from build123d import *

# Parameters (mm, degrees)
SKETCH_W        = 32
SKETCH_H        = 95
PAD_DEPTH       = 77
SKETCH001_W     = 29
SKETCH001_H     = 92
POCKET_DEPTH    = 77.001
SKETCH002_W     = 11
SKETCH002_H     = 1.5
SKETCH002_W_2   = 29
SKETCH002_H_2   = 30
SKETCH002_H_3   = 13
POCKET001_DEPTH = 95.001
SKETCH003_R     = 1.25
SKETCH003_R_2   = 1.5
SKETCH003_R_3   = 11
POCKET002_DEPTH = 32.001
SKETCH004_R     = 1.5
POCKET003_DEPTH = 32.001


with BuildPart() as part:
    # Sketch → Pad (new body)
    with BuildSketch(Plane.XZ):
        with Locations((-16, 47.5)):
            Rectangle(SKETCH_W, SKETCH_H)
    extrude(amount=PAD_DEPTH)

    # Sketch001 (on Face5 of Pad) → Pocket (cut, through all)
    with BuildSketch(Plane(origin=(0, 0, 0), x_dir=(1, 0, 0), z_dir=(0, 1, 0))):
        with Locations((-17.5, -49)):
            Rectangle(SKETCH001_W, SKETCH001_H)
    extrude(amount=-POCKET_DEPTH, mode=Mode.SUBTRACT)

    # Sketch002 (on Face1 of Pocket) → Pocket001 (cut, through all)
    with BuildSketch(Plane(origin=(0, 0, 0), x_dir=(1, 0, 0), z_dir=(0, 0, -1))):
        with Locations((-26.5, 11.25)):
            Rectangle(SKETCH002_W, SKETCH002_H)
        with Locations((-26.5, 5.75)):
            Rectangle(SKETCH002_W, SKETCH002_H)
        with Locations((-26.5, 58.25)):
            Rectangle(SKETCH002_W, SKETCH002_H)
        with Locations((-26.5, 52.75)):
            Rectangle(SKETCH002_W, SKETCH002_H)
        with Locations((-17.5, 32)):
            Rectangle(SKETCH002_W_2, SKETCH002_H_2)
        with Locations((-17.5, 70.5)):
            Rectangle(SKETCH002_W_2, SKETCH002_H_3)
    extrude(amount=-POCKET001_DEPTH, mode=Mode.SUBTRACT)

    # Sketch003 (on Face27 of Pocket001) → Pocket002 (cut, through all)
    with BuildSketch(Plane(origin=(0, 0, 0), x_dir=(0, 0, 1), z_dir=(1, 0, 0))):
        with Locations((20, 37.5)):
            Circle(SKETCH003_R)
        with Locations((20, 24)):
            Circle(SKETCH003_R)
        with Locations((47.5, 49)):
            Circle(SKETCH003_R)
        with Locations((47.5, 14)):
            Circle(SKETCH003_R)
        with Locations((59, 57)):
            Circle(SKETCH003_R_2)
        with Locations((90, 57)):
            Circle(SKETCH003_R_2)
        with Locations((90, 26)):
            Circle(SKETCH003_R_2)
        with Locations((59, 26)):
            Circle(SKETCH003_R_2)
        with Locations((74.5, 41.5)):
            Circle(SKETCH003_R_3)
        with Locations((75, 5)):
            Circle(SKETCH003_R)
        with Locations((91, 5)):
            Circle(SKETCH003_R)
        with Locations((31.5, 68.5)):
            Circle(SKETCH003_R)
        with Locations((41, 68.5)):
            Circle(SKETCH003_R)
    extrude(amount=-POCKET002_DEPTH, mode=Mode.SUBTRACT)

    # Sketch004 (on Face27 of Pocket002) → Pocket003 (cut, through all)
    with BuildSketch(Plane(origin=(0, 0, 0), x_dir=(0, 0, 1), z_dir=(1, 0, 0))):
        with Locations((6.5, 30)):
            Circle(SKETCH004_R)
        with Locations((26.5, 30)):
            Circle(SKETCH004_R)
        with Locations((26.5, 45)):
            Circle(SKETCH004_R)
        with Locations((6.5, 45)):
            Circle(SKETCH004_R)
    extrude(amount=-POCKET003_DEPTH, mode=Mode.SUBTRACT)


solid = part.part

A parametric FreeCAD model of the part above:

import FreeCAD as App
import Part
import Sketcher

V = App.Vector
Q = App.Units.Quantity

doc = App.newDocument("Part")
body = doc.addObject("PartDesign::Body", "Body")

# Sketch on XZ plane
sketch1 = body.newObject("Sketcher::SketchObject", "Sketch")
sketch1.AttachmentSupport = (doc.getObject("XZ_Plane"), [""])
sketch1.MapMode = "FlatFace"
sketch1.addGeometry(Part.LineSegment(V(-32, 95, 0), V(-32, 0, 0)), False)
sketch1.addGeometry(Part.LineSegment(V(-32, 0, 0), V(0, 0, 0)), False)
sketch1.addGeometry(Part.LineSegment(V(0, 0, 0), V(0, 95, 0)), False)
sketch1.addGeometry(Part.LineSegment(V(0, 95, 0), V(-32, 95, 0)), False)
sketch1.addConstraint(Sketcher.Constraint("Coincident", 0, 2, 1, 1))
sketch1.addConstraint(Sketcher.Constraint("Coincident", 1, 2, 2, 1))
sketch1.addConstraint(Sketcher.Constraint("Coincident", 2, 2, 3, 1))
sketch1.addConstraint(Sketcher.Constraint("Coincident", 3, 2, 0, 1))
sketch1.addConstraint(Sketcher.Constraint("Vertical", 0))
sketch1.addConstraint(Sketcher.Constraint("Horizontal", 1))
sketch1.addConstraint(Sketcher.Constraint("Vertical", 2))
sketch1.addConstraint(Sketcher.Constraint("Horizontal", 3))
sketch1.addConstraint(Sketcher.Constraint("Coincident", 1, 2, -1, 1))
sketch1.addConstraint(Sketcher.Constraint("DistanceX", 1, 1, 1, 2, Q("32 mm")))
sketch1.addConstraint(Sketcher.Constraint("DistanceY", 0, 2, 0, 1, Q("95 mm")))
pad1 = body.newObject("PartDesign::Pad", "Pad")
pad1.Profile = sketch1
pad1.Length = 77

# Sketch on XZ plane
sketch2 = body.newObject("Sketcher::SketchObject", "Sketch001")
sketch2.AttachmentSupport = (doc.getObject("XZ_Plane"), [""])
sketch2.MapMode = "FlatFace"
sketch2.addGeometry(Part.LineSegment(V(-32, 3, 0), V(-32, 95, 0)), False)
sketch2.addGeometry(Part.LineSegment(V(-32, 95, 0), V(-3, 95, 0)), False)
sketch2.addGeometry(Part.LineSegment(V(-3, 95, 0), V(-3, 3, 0)), False)
sketch2.addGeometry(Part.LineSegment(V(-3, 3, 0), V(-32, 3, 0)), False)
sketch2.addConstraint(Sketcher.Constraint("Coincident", 0, 2, 1, 1))
sketch2.addConstraint(Sketcher.Constraint("Coincident", 1, 2, 2, 1))
sketch2.addConstraint(Sketcher.Constraint("Coincident", 2, 2, 3, 1))
sketch2.addConstraint(Sketcher.Constraint("Coincident", 3, 2, 0, 1))
sketch2.addConstraint(Sketcher.Constraint("Vertical", 0))
sketch2.addConstraint(Sketcher.Constraint("Horizontal", 1))
sketch2.addConstraint(Sketcher.Constraint("Vertical", 2))
sketch2.addConstraint(Sketcher.Constraint("Horizontal", 3))
sketch2.addConstraint(Sketcher.Constraint("DistanceX", 1, 1, 1, 2, Q("29 mm")))
sketch2.addConstraint(Sketcher.Constraint("DistanceY", 0, 1, 0, 2, Q("92 mm")))
sketch2.addConstraint(Sketcher.Constraint("DistanceX", 0, 2, -1, 1, Q("32 mm")))
sketch2.addConstraint(Sketcher.Constraint("DistanceY", -1, 1, 0, 2, Q("95 mm")))
pocket1 = body.newObject("PartDesign::Pocket", "Pocket")
pocket1.Profile = sketch2
pocket1.Type = "ThroughAll"
pocket1.Reversed = True

# Sketch on XY plane
sketch3 = body.newObject("Sketcher::SketchObject", "Sketch002")
sketch3.AttachmentSupport = (doc.getObject("XY_Plane"), [""])
sketch3.MapMode = "FlatFace"
sketch3.addGeometry(Part.LineSegment(V(-32, -12, 0), V(-32, -10.5, 0)), False)
sketch3.addGeometry(Part.LineSegment(V(-32, -10.5, 0), V(-21, -10.5, 0)), False)
sketch3.addGeometry(Part.LineSegment(V(-21, -10.5, 0), V(-21, -12, 0)), False)
sketch3.addGeometry(Part.LineSegment(V(-21, -12, 0), V(-32, -12, 0)), False)
sketch3.addGeometry(Part.LineSegment(V(-32, -6.5, 0), V(-32, -5, 0)), False)
sketch3.addGeometry(Part.LineSegment(V(-32, -5, 0), V(-21, -5, 0)), False)
sketch3.addGeometry(Part.LineSegment(V(-21, -5, 0), V(-21, -6.5, 0)), False)
sketch3.addGeometry(Part.LineSegment(V(-21, -6.5, 0), V(-32, -6.5, 0)), False)
sketch3.addGeometry(Part.LineSegment(V(-32, -59, 0), V(-32, -57.5, 0)), False)
sketch3.addGeometry(Part.LineSegment(V(-32, -57.5, 0), V(-21, -57.5, 0)), False)
sketch3.addGeometry(Part.LineSegment(V(-21, -57.5, 0), V(-21, -59, 0)), False)
sketch3.addGeometry(Part.LineSegment(V(-21, -59, 0), V(-32, -59, 0)), False)
sketch3.addGeometry(Part.LineSegment(V(-32, -53.5, 0), V(-32, -52, 0)), False)
sketch3.addGeometry(Part.LineSegment(V(-32, -52, 0), V(-21, -52, 0)), False)
sketch3.addGeometry(Part.LineSegment(V(-21, -52, 0), V(-21, -53.5, 0)), False)
sketch3.addGeometry(Part.LineSegment(V(-21, -53.5, 0), V(-32, -53.5, 0)), False)
sketch3.addGeometry(Part.LineSegment(V(-32, -47, 0), V(-32, -17, 0)), False)
sketch3.addGeometry(Part.LineSegment(V(-32, -17, 0), V(-3, -17, 0)), False)
sketch3.addGeometry(Part.LineSegment(V(-3, -17, 0), V(-3, -47, 0)), False)
sketch3.addGeometry(Part.LineSegment(V(-3, -47, 0), V(-32, -47, 0)), False)
sketch3.addGeometry(Part.LineSegment(V(-32, -77, 0), V(-32, -64, 0)), False)
sketch3.addGeometry(Part.LineSegment(V(-32, -64, 0), V(-3, -64, 0)), False)
sketch3.addGeometry(Part.LineSegment(V(-3, -64, 0), V(-3, -77, 0)), False)
sketch3.addGeometry(Part.LineSegment(V(-3, -77, 0), V(-32, -77, 0)), False)
sketch3.addConstraint(Sketcher.Constraint("Coincident", 0, 2, 1, 1))
sketch3.addConstraint(Sketcher.Constraint("Coincident", 1, 2, 2, 1))
sketch3.addConstraint(Sketcher.Constraint("Coincident", 2, 2, 3, 1))
sketch3.addConstraint(Sketcher.Constraint("Coincident", 3, 2, 0, 1))
sketch3.addConstraint(Sketcher.Constraint("Coincident", 4, 2, 5, 1))
sketch3.addConstraint(Sketcher.Constraint("Coincident", 5, 2, 6, 1))
sketch3.addConstraint(Sketcher.Constraint("Coincident", 6, 2, 7, 1))
sketch3.addConstraint(Sketcher.Constraint("Coincident", 7, 2, 4, 1))
sketch3.addConstraint(Sketcher.Constraint("Coincident", 8, 2, 9, 1))
sketch3.addConstraint(Sketcher.Constraint("Coincident", 9, 2, 10, 1))
sketch3.addConstraint(Sketcher.Constraint("Coincident", 10, 2, 11, 1))
sketch3.addConstraint(Sketcher.Constraint("Coincident", 11, 2, 8, 1))
sketch3.addConstraint(Sketcher.Constraint("Coincident", 12, 2, 13, 1))
sketch3.addConstraint(Sketcher.Constraint("Coincident", 13, 2, 14, 1))
sketch3.addConstraint(Sketcher.Constraint("Coincident", 14, 2, 15, 1))
sketch3.addConstraint(Sketcher.Constraint("Coincident", 15, 2, 12, 1))
sketch3.addConstraint(Sketcher.Constraint("Coincident", 16, 2, 17, 1))
sketch3.addConstraint(Sketcher.Constraint("Coincident", 17, 2, 18, 1))
sketch3.addConstraint(Sketcher.Constraint("Coincident", 18, 2, 19, 1))
sketch3.addConstraint(Sketcher.Constraint("Coincident", 19, 2, 16, 1))
sketch3.addConstraint(Sketcher.Constraint("Coincident", 20, 2, 21, 1))
sketch3.addConstraint(Sketcher.Constraint("Coincident", 21, 2, 22, 1))
sketch3.addConstraint(Sketcher.Constraint("Coincident", 22, 2, 23, 1))
sketch3.addConstraint(Sketcher.Constraint("Coincident", 23, 2, 20, 1))
sketch3.addConstraint(Sketcher.Constraint("Vertical", 0))
sketch3.addConstraint(Sketcher.Constraint("Horizontal", 1))
sketch3.addConstraint(Sketcher.Constraint("Vertical", 2))
sketch3.addConstraint(Sketcher.Constraint("Horizontal", 3))
sketch3.addConstraint(Sketcher.Constraint("Vertical", 4))
sketch3.addConstraint(Sketcher.Constraint("Horizontal", 5))
sketch3.addConstraint(Sketcher.Constraint("Vertical", 6))
sketch3.addConstraint(Sketcher.Constraint("Horizontal", 7))
sketch3.addConstraint(Sketcher.Constraint("Vertical", 8))
sketch3.addConstraint(Sketcher.Constraint("Horizontal", 9))
sketch3.addConstraint(Sketcher.Constraint("Vertical", 10))
sketch3.addConstraint(Sketcher.Constraint("Horizontal", 11))
sketch3.addConstraint(Sketcher.Constraint("Vertical", 12))
sketch3.addConstraint(Sketcher.Constraint("Horizontal", 13))
sketch3.addConstraint(Sketcher.Constraint("Vertical", 14))
sketch3.addConstraint(Sketcher.Constraint("Horizontal", 15))
sketch3.addConstraint(Sketcher.Constraint("Vertical", 16))
sketch3.addConstraint(Sketcher.Constraint("Horizontal", 17))
sketch3.addConstraint(Sketcher.Constraint("Vertical", 18))
sketch3.addConstraint(Sketcher.Constraint("Horizontal", 19))
sketch3.addConstraint(Sketcher.Constraint("Vertical", 20))
sketch3.addConstraint(Sketcher.Constraint("Horizontal", 21))
sketch3.addConstraint(Sketcher.Constraint("Vertical", 22))
sketch3.addConstraint(Sketcher.Constraint("Horizontal", 23))
sketch3.addConstraint(Sketcher.Constraint("Vertical", 3, 2, 4, 2))
sketch3.addConstraint(Sketcher.Constraint("Vertical", 2, 2, 5, 2))
sketch3.addConstraint(Sketcher.Constraint("Vertical", 7, 2, 8, 2))
sketch3.addConstraint(Sketcher.Constraint("Vertical", 6, 2, 9, 2))
sketch3.addConstraint(Sketcher.Constraint("Vertical", 11, 2, 12, 2))
sketch3.addConstraint(Sketcher.Constraint("Vertical", 10, 2, 13, 2))
sketch3.addConstraint(Sketcher.Constraint("Vertical", 15, 2, 16, 2))
sketch3.addConstraint(Sketcher.Constraint("Vertical", 19, 2, 20, 2))
sketch3.addConstraint(Sketcher.Constraint("Vertical", 18, 2, 21, 2))
sketch3.addConstraint(Sketcher.Constraint("Equal", 2, 4))
sketch3.addConstraint(Sketcher.Constraint("Equal", 6, 8))
sketch3.addConstraint(Sketcher.Constraint("Equal", 10, 12))
sketch3.addConstraint(Sketcher.Constraint("DistanceX", 1, 1, 1, 2, Q("11 mm")))
sketch3.addConstraint(Sketcher.Constraint("DistanceX", 17, 1, 17, 2, Q("29 mm")))
sketch3.addConstraint(Sketcher.Constraint("DistanceY", 16, 1, 16, 2, Q("30 mm")))
sketch3.addConstraint(Sketcher.Constraint("DistanceY", 20, 1, 20, 2, Q("13 mm")))
sketch3.addConstraint(Sketcher.Constraint("DistanceY", 0, 1, 0, 2, Q("1.5 mm")))
sketch3.addConstraint(Sketcher.Constraint("DistanceX", 0, 2, -1, 1, Q("32 mm")))
sketch3.addConstraint(Sketcher.Constraint("DistanceY", 2, 2, -1, 1, Q("12 mm")))
sketch3.addConstraint(Sketcher.Constraint("DistanceY", 4, 2, -1, 1, Q("5 mm")))
sketch3.addConstraint(Sketcher.Constraint("DistanceY", 10, 2, -1, 1, Q("59 mm")))
sketch3.addConstraint(Sketcher.Constraint("DistanceY", 12, 2, -1, 1, Q("52 mm")))
sketch3.addConstraint(Sketcher.Constraint("DistanceY", 16, 2, -1, 1, Q("17 mm")))
sketch3.addConstraint(Sketcher.Constraint("DistanceY", 20, 2, -1, 1, Q("64 mm")))
pocket2 = body.newObject("PartDesign::Pocket", "Pocket001")
pocket2.Profile = sketch3
pocket2.Type = "ThroughAll"
pocket2.Reversed = True

# Sketch on YZ plane
sketch4 = body.newObject("Sketcher::SketchObject", "Sketch003")
sketch4.AttachmentSupport = (doc.getObject("YZ_Plane"), [""])
sketch4.MapMode = "FlatFace"
sketch4.addGeometry(Part.Circle(V(-37.5, 20, 0), V(0, 0, 1), 1.2), False)
sketch4.addGeometry(Part.Circle(V(-24, 20, 0), V(0, 0, 1), 1.2), False)
sketch4.addGeometry(Part.Circle(V(-49, 47.5, 0), V(0, 0, 1), 1.2), False)
sketch4.addGeometry(Part.Circle(V(-14, 47.5, 0), V(0, 0, 1), 1.2), False)
sketch4.addGeometry(Part.Circle(V(-57, 59, 0), V(0, 0, 1), 1.5), False)
sketch4.addGeometry(Part.Circle(V(-57, 90, 0), V(0, 0, 1), 1.5), False)
sketch4.addGeometry(Part.Circle(V(-26, 90, 0), V(0, 0, 1), 1.5), False)
sketch4.addGeometry(Part.Circle(V(-26, 59, 0), V(0, 0, 1), 1.5), False)
sketch4.addGeometry(Part.Circle(V(-41.5, 74.5, 0), V(0, 0, 1), 11), False)
sketch4.addGeometry(Part.Circle(V(-5, 75, 0), V(0, 0, 1), 1.2), False)
sketch4.addGeometry(Part.Circle(V(-5, 91, 0), V(0, 0, 1), 1.2), False)
sketch4.addGeometry(Part.Circle(V(-68.5, 31.5, 0), V(0, 0, 1), 1.2), False)
sketch4.addGeometry(Part.Circle(V(-68.5, 41, 0), V(0, 0, 1), 1.2), False)
sketch4.addConstraint(Sketcher.Constraint("Equal", 0, 1))
sketch4.addConstraint(Sketcher.Constraint("Equal", 1, 2))
sketch4.addConstraint(Sketcher.Constraint("Equal", 2, 3))
sketch4.addConstraint(Sketcher.Constraint("Equal", 4, 5))
sketch4.addConstraint(Sketcher.Constraint("Equal", 5, 6))
sketch4.addConstraint(Sketcher.Constraint("Equal", 6, 7))
sketch4.addConstraint(Sketcher.Constraint("Equal", 3, 9))
sketch4.addConstraint(Sketcher.Constraint("Equal", 9, 10))
sketch4.addConstraint(Sketcher.Constraint("Equal", 10, 11))
sketch4.addConstraint(Sketcher.Constraint("Equal", 11, 12))
sketch4.addConstraint(Sketcher.Constraint("Horizontal", 0, 3, 1, 3))
sketch4.addConstraint(Sketcher.Constraint("Horizontal", 2, 3, 3, 3))
sketch4.addConstraint(Sketcher.Constraint("Horizontal", 5, 3, 6, 3))
sketch4.addConstraint(Sketcher.Constraint("Horizontal", 4, 3, 7, 3))
sketch4.addConstraint(Sketcher.Constraint("Vertical", 4, 3, 5, 3))
sketch4.addConstraint(Sketcher.Constraint("Vertical", 6, 3, 7, 3))
sketch4.addConstraint(Sketcher.Constraint("Vertical", 9, 3, 10, 3))
sketch4.addConstraint(Sketcher.Constraint("Vertical", 11, 3, 12, 3))
sketch4.addConstraint(Sketcher.Constraint("Diameter", 4, Q("3 mm")))
sketch4.addConstraint(Sketcher.Constraint("Diameter", 8, Q("22 mm")))
sketch4.addConstraint(Sketcher.Constraint("Diameter", 0, Q("2.5 mm")))
sketch4.addConstraint(Sketcher.Constraint("DistanceY", -1, 1, 0, 3, Q("20 mm")))
sketch4.addConstraint(Sketcher.Constraint("DistanceX", 1, 3, -1, 1, Q("24 mm")))
sketch4.addConstraint(Sketcher.Constraint("DistanceX", 2, 3, -1, 1, Q("49 mm")))
sketch4.addConstraint(Sketcher.Constraint("DistanceX", 3, 3, -1, 1, Q("14 mm")))
sketch4.addConstraint(Sketcher.Constraint("DistanceX", 4, 3, -1, 1, Q("57 mm")))
sketch4.addConstraint(Sketcher.Constraint("DistanceY", -1, 1, 4, 3, Q("59 mm")))
sketch4.addConstraint(Sketcher.Constraint("DistanceY", -1, 1, 5, 3, Q("90 mm")))
sketch4.addConstraint(Sketcher.Constraint("DistanceX", 6, 3, -1, 1, Q("26 mm")))
sketch4.addConstraint(Sketcher.Constraint("DistanceX", 9, 3, -1, 1, Q("5 mm")))
sketch4.addConstraint(Sketcher.Constraint("DistanceY", -1, 1, 9, 3, Q("75 mm")))
sketch4.addConstraint(Sketcher.Constraint("DistanceY", -1, 1, 10, 3, Q("91 mm")))
sketch4.addConstraint(Sketcher.Constraint("DistanceY", -1, 1, 12, 3, Q("41 mm")))
sketch4.addConstraint(Sketcher.Constraint("DistanceY", 2, 3, 8, 3, Q("27 mm")))
sketch4.addConstraint(Sketcher.Constraint("DistanceY", 11, 3, 2, 3, Q("16 mm")))
sketch4.addConstraint(Sketcher.Constraint("DistanceX", 11, 3, 0, 3, Q("31 mm")))
sketch4.addConstraint(Sketcher.Constraint("DistanceX", 12, 3, 8, 3, Q("27 mm")))
sketch4.addConstraint(Sketcher.Constraint("DistanceX", 0, 3, -1, 1, Q("37.5 mm")))
sketch4.addConstraint(Sketcher.Constraint("DistanceY", -1, 1, 2, 3, Q("47.5 mm")))
pocket3 = body.newObject("PartDesign::Pocket", "Pocket002")
pocket3.Profile = sketch4
pocket3.Type = "ThroughAll"

# Sketch on YZ plane
sketch5 = body.newObject("Sketcher::SketchObject", "Sketch004")
sketch5.AttachmentSupport = (doc.getObject("YZ_Plane"), [""])
sketch5.MapMode = "FlatFace"
sketch5.addGeometry(Part.Circle(V(-30, 6.5, 0), V(0, 0, 1), 1.5), False)
sketch5.addGeometry(Part.Circle(V(-30, 26.5, 0), V(0, 0, 1), 1.5), False)
sketch5.addGeometry(Part.Circle(V(-45, 26.5, 0), V(0, 0, 1), 1.5), False)
sketch5.addGeometry(Part.Circle(V(-45, 6.5, 0), V(0, 0, 1), 1.5), False)
sketch5.addConstraint(Sketcher.Constraint("Equal", 0, 1))
sketch5.addConstraint(Sketcher.Constraint("Equal", 1, 2))
sketch5.addConstraint(Sketcher.Constraint("Equal", 2, 3))
sketch5.addConstraint(Sketcher.Constraint("Horizontal", 1, 3, 2, 3))
sketch5.addConstraint(Sketcher.Constraint("Horizontal", 0, 3, 3, 3))
sketch5.addConstraint(Sketcher.Constraint("Vertical", 0, 3, 1, 3))
sketch5.addConstraint(Sketcher.Constraint("Vertical", 2, 3, 3, 3))
sketch5.addConstraint(Sketcher.Constraint("Diameter", 0, Q("3 mm")))
sketch5.addConstraint(Sketcher.Constraint("DistanceX", 0, 3, -1, 1, Q("30 mm")))
sketch5.addConstraint(Sketcher.Constraint("DistanceX", 2, 3, -1, 1, Q("45 mm")))
sketch5.addConstraint(Sketcher.Constraint("DistanceY", 0, 3, 1, 3, Q("20 mm")))
sketch5.addConstraint(Sketcher.Constraint("DistanceY", -1, 1, 0, 3, Q("6.5 mm")))
pocket4 = body.newObject("PartDesign::Pocket", "Pocket003")
pocket4.Profile = sketch5
pocket4.Type = "ThroughAll"

doc.recompute()
